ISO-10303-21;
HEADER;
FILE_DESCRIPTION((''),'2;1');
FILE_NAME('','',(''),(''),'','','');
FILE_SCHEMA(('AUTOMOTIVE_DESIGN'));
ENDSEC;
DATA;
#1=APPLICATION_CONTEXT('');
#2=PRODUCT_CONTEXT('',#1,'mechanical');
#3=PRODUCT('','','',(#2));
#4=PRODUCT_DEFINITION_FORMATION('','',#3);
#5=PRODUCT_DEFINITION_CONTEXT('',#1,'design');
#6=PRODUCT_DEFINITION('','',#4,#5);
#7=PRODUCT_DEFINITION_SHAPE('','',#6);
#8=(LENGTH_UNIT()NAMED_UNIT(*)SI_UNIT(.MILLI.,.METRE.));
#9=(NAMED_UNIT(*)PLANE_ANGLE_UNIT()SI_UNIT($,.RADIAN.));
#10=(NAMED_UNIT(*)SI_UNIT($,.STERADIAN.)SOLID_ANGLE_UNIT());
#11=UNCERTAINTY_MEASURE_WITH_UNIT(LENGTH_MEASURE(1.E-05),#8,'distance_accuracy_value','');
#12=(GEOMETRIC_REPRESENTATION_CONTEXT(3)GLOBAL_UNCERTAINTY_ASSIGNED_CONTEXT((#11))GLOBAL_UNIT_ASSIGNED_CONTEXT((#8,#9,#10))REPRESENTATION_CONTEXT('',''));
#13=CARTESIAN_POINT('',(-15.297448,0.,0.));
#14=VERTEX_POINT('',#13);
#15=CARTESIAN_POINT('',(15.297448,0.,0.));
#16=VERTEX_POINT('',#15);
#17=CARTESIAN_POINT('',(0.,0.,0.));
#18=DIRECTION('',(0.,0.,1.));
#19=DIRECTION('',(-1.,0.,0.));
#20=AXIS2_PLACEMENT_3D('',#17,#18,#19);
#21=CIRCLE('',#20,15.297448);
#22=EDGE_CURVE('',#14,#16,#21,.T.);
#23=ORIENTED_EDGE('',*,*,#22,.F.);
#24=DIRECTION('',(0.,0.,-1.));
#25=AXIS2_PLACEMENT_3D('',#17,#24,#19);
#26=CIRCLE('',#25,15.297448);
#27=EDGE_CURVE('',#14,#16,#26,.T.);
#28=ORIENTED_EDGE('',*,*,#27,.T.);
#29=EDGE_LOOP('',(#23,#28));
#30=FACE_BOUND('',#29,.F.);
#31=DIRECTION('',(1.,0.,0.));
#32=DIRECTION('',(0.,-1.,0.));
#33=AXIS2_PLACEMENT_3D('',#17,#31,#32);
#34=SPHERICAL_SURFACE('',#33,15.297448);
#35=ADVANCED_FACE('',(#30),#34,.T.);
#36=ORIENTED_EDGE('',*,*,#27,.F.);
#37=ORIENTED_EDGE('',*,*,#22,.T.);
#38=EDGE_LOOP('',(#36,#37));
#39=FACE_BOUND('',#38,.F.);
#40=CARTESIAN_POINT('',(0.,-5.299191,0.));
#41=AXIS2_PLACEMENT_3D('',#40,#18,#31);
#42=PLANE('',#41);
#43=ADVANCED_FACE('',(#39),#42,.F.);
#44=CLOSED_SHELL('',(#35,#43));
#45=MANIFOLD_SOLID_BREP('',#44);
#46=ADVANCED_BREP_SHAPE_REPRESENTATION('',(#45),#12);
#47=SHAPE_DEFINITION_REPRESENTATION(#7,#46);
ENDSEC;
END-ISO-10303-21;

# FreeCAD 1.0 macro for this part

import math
import FreeCAD as App
import Part
import Sketcher

doc = App.newDocument("Part")
params = doc.addObject("Spreadsheet::Sheet", "Params")
for row, (alias, value) in enumerate([
    ("revolution_angle", "180 deg"),
], start=1):
    params.set(f"A{row}", alias)
    params.set(f"B{row}", "=" + value)
    params.setAlias(f"B{row}", alias)

body = doc.addObject("PartDesign::Body", "Body")

sketch1 = body.newObject("Sketcher::SketchObject", "Sketch")
sketch1.AttachmentSupport = (doc.getObject("XY_Plane"), [""])
sketch1.MapMode = "FlatFace"
sketch1.addGeometry(Part.LineSegment(App.Vector(15.297448, 0, 0), App.Vector(-15.297448, 0, 0)), False)
sketch1.addGeometry(Part.ArcOfCircle(Part.Circle(App.Vector(0, 0, 0), App.Vector(0, 0, 1), 15.297448), math.radians(180), math.radians(360)), False)
sketch1.addConstraint(Sketcher.Constraint("Coincident", 0, 1, 1, 2))
sketch1.addConstraint(Sketcher.Constraint("Coincident", 1, 1, 0, 2))
sketch1.addConstraint(Sketcher.Constraint("Horizontal", 0))
sketch1.addConstraint(Sketcher.Constraint("Coincident", 1, 3, -1, 1))
sketch1.addConstraint(Sketcher.Constraint("PointOnObject", 0, 1, -1))
sketch1.addConstraint(Sketcher.Constraint("Radius", 1, 15.297448))
revolution = body.newObject("PartDesign::Revolution", "Revolution")
revolution.Profile = sketch1
revolution.ReferenceAxis = (sketch1, ["H_Axis"])
revolution.setExpression("Angle", "Params.revolution_angle")
revolution.Reversed = True

doc.recompute()
